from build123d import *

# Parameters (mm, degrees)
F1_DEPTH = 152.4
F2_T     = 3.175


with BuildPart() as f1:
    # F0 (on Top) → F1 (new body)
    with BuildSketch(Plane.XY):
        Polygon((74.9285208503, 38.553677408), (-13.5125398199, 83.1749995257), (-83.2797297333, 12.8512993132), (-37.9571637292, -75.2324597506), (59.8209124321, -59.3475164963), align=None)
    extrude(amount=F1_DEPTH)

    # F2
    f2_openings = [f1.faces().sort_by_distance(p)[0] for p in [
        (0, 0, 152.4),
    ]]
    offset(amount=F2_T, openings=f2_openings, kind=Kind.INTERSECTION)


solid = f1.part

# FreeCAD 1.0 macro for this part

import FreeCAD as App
import Part
import Sketcher

V = App.Vector
Q = App.Units.Quantity


def faces_at(feature, points):
    """Names of the faces that lie closest to the given points."""
    faces = feature.Shape.Faces
    near = lambda p: min(range(len(faces)), key=lambda i: faces[i].distToShape(Part.Vertex(*p))[0])
    return sorted({f"Face{near(p) + 1}" for p in points})


def add_polygon(sketch, points):
    """Adds a closed chain of lines whose ends are joined by coincident constraints."""
    first, n = sketch.GeometryCount, len(points)
    for a, b in zip(points, points[1:] + points[:1]):
        sketch.addGeometry(Part.LineSegment(App.Vector(*a, 0), App.Vector(*b, 0)), False)
    for i in range(n):
        sketch.addConstraint(Sketcher.Constraint("Coincident", first + i, 2, first + (i + 1) % n, 1))

doc = App.newDocument("Part")
params = doc.addObject("Spreadsheet::Sheet", "Params")
for row, (alias, value) in enumerate([
    ("sketch1_length", "3.9 in"),
    ("pad1_length", "6 in"),
    ("thickness_wall", "0.125 in"),
], start=1):
    params.set(f"A{row}", alias)
    params.set(f"B{row}", "=" + value)
    params.setAlias(f"B{row}", alias)

body = doc.addObject("PartDesign::Body", "Body")

# Sketch on XY plane
sketch1 = body.newObject("Sketcher::SketchObject", "Sketch")
sketch1.AttachmentSupport = (doc.getObject("XY_Plane"), [""])
sketch1.MapMode = "FlatFace"
add_polygon(sketch1, [(75, 39), (-14, 83), (-83, 13), (-38, -75), (60, -59)])  # lines 0-4
sketch1.addConstraint([
    Sketcher.Constraint("Equal", 0, 1),
    Sketcher.Constraint("Equal", 1, 2),
    Sketcher.Constraint("Equal", 2, 3),
    Sketcher.Constraint("Equal", 3, 4),
    Sketcher.Constraint("Distance", 0, Q("3.9 in")),
    Sketcher.Constraint("DistanceY", -1, 1, 0, 2, 83.175),
    Sketcher.Constraint("DistanceY", -1, 1, 1, 2, 12.851299),
    Sketcher.Constraint("DistanceX", 0, 2, -1, 1, 13.51254),
    Sketcher.Constraint("DistanceY", 2, 2, -1, 1, 75.23246),
    Sketcher.Constraint("DistanceX", -1, 1, 4, 2, 74.928521),
])
sketch1.setExpression("Constraints[9]", "Params.sketch1_length")
pad1 = body.newObject("PartDesign::Pad", "Pad")
pad1.Profile = sketch1
pad1.setExpression("Length", "Params.pad1_length")
doc.recompute()

thickness = body.newObject("PartDesign::Thickness", "Thickness")
thickness.Base = (pad1, faces_at(pad1, [(-4.176, 3.971, 152.4)]))
thickness.setExpression("Value", "Params.thickness_wall")
thickness.Reversed = False
thickness.Join = "Intersection"

doc.recompute()
